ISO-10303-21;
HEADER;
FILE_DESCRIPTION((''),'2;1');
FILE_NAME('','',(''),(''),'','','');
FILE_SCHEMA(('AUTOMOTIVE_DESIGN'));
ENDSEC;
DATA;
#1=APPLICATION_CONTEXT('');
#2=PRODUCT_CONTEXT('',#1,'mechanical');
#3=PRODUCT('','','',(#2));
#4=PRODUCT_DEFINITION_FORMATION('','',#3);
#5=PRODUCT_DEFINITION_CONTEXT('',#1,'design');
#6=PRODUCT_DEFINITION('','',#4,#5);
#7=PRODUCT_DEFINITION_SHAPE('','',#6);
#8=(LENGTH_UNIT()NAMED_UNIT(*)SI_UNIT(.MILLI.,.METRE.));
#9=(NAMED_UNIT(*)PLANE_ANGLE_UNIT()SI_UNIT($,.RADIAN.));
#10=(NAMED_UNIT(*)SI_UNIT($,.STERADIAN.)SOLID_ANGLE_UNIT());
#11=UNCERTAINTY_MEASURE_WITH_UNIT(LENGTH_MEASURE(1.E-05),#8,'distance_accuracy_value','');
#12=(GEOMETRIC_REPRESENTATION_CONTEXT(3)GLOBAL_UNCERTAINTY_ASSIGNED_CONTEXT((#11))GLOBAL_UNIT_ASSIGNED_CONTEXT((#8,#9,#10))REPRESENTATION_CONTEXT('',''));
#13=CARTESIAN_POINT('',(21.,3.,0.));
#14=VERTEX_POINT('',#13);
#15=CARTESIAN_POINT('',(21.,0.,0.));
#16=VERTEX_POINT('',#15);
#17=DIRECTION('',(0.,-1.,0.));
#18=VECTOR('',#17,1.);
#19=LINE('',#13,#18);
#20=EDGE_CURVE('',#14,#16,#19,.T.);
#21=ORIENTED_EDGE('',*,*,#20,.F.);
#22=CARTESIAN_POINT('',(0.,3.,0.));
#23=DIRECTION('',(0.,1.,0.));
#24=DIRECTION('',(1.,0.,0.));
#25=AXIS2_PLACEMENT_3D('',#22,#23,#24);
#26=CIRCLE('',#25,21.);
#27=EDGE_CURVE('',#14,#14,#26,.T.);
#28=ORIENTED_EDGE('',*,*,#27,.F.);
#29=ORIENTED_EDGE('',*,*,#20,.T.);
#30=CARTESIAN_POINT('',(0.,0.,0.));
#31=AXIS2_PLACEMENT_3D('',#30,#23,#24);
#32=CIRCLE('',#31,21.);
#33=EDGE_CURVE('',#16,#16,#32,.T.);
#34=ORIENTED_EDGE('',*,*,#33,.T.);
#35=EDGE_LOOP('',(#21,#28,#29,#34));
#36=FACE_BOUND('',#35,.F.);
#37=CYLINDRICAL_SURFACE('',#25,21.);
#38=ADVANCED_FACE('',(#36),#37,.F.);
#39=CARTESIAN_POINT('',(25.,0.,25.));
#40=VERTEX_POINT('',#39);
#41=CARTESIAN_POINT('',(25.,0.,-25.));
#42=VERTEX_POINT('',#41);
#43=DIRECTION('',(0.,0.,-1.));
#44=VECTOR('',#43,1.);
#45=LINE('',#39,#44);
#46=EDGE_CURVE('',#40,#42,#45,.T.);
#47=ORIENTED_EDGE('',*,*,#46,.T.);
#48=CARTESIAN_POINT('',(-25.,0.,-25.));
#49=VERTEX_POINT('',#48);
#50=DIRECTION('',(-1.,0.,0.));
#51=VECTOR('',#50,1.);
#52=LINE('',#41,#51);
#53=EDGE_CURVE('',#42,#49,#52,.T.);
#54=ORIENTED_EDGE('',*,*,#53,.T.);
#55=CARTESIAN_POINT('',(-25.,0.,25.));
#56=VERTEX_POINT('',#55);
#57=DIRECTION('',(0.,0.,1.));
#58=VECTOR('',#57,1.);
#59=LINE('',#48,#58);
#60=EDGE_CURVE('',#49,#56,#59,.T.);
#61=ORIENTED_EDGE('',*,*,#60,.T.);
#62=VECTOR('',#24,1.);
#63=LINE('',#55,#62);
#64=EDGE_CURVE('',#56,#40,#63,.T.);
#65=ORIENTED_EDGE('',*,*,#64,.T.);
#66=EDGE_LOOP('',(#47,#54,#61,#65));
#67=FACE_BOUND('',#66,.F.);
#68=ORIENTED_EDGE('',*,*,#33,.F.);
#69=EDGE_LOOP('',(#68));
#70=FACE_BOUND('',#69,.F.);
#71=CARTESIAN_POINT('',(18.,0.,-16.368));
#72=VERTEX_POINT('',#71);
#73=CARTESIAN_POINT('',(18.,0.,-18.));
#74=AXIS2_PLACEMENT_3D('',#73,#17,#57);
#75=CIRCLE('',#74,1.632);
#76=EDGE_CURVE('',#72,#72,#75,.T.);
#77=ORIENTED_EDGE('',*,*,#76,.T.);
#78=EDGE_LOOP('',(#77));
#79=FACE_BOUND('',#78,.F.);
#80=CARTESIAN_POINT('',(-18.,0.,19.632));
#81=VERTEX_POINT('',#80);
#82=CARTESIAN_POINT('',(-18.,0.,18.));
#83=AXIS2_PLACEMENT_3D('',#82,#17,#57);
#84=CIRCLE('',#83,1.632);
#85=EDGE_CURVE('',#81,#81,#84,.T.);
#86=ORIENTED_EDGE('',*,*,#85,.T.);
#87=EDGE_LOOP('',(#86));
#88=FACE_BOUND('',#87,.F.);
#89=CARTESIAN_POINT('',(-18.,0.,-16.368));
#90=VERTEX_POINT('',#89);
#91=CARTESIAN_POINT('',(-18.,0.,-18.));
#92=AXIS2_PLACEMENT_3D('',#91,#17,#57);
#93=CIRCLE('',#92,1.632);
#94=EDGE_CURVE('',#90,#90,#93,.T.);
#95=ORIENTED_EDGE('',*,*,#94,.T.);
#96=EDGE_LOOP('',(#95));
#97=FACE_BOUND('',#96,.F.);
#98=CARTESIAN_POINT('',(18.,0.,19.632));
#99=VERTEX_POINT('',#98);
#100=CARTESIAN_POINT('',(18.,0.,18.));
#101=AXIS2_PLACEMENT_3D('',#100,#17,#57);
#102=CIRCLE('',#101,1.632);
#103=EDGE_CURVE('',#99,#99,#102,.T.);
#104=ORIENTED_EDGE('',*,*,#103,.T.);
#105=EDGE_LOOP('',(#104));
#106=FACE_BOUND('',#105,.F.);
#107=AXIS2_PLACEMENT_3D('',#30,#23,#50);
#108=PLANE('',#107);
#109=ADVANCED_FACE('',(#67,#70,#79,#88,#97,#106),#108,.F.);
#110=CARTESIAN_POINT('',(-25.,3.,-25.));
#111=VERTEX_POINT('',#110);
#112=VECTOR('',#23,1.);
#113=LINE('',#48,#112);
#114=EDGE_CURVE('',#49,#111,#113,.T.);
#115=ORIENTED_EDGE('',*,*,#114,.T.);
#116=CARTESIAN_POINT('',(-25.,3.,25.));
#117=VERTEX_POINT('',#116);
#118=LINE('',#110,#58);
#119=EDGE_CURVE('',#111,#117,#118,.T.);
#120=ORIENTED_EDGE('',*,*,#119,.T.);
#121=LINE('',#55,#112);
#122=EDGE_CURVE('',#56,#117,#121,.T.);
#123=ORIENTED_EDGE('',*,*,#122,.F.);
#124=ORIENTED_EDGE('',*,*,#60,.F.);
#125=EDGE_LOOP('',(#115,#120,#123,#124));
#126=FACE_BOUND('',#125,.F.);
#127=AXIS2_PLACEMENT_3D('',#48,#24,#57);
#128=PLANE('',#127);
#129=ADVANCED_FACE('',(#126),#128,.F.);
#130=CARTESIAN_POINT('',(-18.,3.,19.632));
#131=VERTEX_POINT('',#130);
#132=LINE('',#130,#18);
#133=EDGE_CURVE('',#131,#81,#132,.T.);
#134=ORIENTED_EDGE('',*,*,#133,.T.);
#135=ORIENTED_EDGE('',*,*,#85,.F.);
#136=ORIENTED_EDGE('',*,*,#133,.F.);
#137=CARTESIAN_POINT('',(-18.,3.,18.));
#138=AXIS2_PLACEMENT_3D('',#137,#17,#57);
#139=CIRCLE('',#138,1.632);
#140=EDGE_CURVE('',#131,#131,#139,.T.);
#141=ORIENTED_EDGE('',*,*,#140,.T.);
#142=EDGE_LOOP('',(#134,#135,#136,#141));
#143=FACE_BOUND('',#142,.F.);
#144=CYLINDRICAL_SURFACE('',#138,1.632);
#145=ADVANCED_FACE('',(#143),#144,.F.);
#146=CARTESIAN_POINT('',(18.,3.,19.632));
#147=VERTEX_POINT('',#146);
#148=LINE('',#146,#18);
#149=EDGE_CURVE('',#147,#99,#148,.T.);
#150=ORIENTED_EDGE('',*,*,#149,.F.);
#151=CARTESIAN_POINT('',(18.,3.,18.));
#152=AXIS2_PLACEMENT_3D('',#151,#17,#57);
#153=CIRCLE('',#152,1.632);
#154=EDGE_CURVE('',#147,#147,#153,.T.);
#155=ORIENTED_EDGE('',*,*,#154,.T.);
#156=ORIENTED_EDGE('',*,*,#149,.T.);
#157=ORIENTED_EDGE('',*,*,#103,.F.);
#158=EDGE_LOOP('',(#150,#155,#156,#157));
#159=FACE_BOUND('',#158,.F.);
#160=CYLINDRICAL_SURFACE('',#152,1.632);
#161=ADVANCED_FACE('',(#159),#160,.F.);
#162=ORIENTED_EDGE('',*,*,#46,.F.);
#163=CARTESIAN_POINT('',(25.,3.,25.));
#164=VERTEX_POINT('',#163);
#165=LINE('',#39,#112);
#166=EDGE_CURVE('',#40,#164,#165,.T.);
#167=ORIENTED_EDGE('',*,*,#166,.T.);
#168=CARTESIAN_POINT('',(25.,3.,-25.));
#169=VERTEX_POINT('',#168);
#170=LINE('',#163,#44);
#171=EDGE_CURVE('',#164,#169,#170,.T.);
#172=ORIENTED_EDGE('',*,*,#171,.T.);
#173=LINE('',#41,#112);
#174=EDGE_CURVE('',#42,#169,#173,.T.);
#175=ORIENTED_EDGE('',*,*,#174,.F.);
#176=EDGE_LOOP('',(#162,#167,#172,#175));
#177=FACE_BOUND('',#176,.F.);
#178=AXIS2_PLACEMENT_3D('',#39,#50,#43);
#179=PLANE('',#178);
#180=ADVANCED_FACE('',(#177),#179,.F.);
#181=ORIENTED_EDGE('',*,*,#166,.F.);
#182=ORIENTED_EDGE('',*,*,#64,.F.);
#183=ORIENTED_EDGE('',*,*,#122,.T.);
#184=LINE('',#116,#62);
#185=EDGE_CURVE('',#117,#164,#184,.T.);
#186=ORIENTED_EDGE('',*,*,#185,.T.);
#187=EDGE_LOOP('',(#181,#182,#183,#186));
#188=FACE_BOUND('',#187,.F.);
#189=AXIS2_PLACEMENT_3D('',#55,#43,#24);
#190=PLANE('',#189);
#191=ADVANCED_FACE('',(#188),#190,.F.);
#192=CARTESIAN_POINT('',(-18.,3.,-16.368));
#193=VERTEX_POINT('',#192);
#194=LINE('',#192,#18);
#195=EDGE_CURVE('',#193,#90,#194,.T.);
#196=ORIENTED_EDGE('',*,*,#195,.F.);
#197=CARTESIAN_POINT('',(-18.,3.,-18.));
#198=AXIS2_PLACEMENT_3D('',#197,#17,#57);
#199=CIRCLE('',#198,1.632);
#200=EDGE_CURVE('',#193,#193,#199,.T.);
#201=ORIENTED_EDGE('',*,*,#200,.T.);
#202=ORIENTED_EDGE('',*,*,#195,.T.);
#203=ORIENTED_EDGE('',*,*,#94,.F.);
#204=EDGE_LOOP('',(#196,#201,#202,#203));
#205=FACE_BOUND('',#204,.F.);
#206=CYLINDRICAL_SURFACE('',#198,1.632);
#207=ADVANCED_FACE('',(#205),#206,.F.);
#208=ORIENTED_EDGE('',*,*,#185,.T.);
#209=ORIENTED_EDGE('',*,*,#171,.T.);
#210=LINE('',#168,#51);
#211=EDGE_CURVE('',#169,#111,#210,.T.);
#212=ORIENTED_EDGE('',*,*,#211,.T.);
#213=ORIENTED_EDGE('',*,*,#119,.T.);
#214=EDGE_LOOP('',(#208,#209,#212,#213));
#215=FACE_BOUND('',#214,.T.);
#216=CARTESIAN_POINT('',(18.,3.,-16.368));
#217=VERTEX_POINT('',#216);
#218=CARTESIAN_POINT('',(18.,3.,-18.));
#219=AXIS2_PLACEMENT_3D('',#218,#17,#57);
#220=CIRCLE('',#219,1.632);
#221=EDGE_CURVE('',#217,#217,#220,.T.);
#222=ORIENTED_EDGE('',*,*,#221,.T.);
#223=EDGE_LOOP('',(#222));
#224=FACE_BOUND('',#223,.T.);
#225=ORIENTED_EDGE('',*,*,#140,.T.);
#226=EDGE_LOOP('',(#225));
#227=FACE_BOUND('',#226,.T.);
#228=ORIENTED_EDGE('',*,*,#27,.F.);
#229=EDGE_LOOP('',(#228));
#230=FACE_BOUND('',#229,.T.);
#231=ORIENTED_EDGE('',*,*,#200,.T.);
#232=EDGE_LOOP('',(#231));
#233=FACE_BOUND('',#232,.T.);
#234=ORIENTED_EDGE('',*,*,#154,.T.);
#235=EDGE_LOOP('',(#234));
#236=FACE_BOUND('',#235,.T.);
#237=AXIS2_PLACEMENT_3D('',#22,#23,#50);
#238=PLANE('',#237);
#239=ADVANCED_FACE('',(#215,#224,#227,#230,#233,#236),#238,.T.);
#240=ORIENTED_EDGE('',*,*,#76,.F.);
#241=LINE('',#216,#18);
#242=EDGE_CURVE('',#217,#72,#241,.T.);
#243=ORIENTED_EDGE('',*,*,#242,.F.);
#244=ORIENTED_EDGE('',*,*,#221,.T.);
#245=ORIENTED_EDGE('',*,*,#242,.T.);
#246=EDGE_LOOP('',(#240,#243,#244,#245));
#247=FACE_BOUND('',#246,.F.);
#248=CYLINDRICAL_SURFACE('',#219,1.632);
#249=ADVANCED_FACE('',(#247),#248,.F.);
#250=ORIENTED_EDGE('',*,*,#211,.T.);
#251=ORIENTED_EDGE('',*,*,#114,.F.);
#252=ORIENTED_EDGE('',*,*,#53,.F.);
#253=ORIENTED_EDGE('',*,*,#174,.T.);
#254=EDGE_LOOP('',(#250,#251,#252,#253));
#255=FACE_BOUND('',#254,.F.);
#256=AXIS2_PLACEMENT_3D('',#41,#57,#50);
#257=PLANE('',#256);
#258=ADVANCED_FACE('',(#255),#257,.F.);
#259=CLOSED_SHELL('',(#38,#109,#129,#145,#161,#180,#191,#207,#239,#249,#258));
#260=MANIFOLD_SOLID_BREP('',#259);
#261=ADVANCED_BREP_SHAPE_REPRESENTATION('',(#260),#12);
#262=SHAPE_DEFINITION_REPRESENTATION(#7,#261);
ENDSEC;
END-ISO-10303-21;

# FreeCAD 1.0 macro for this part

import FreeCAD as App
import Part
import Sketcher
from FreeCAD import Vector

doc = App.newDocument("Part")
body = doc.addObject("PartDesign::Body", "Body")

# Sketch on XZ plane
sketch1 = body.newObject("Sketcher::SketchObject", "Sketch")
sketch1.AttachmentSupport = (doc.getObject("XZ_Plane"), [""])
sketch1.MapMode = "FlatFace"
sketch1.addGeometry(Part.LineSegment(Vector(25, 25, 0), Vector(25, -25, 0)), False)
sketch1.addGeometry(Part.LineSegment(Vector(25, -25, 0), Vector(-25, -25, 0)), False)
sketch1.addGeometry(Part.LineSegment(Vector(-25, -25, 0), Vector(-25, 25, 0)), False)
sketch1.addGeometry(Part.LineSegment(Vector(-25, 25, 0), Vector(25, 25, 0)), False)
sketch1.addConstraint(Sketcher.Constraint("Coincident", 0, 2, 1, 1))
sketch1.addConstraint(Sketcher.Constraint("Coincident", 1, 2, 2, 1))
sketch1.addConstraint(Sketcher.Constraint("Coincident", 2, 2, 3, 1))
sketch1.addConstraint(Sketcher.Constraint("Coincident", 3, 2, 0, 1))
sketch1.addConstraint(Sketcher.Constraint("Vertical", 0))
sketch1.addConstraint(Sketcher.Constraint("Horizontal", 1))
sketch1.addConstraint(Sketcher.Constraint("Vertical", 2))
sketch1.addConstraint(Sketcher.Constraint("Horizontal", 3))
sketch1.addConstraint(Sketcher.Constraint("Symmetric", 0, 2, 2, 2, -1, 1))
sketch1.addConstraint(Sketcher.Constraint("Equal", 3, 0))
sketch1.addConstraint(Sketcher.Constraint("DistanceX", 1, 2, 1, 1, 50.0))
pad1 = body.newObject("PartDesign::Pad", "Pad")
pad1.Profile = sketch1
pad1.Length = 3
pad1.Reversed = True

# Sketch on XZ plane
sketch2 = body.newObject("Sketcher::SketchObject", "Sketch001")
sketch2.AttachmentSupport = (doc.getObject("XZ_Plane"), [""])
sketch2.MapMode = "FlatFace"
sketch2.AttachmentOffset = App.Placement(Vector(0, 0, -3), App.Rotation())
sketch2.addGeometry(Part.Circle(Vector(0, 0, 0), Vector(0, 0, 1), 21), False)
sketch2.addConstraint(Sketcher.Constraint("Coincident", 0, 3, -1, 1))
sketch2.addConstraint(Sketcher.Constraint("Diameter", 0, 42.0))
pocket1 = body.newObject("PartDesign::Pocket", "Pocket")
pocket1.Profile = sketch2
pocket1.Length = 3
pocket1.Reversed = True

# Sketch on XZ plane
sketch3 = body.newObject("Sketcher::SketchObject", "Sketch002")
sketch3.AttachmentSupport = (doc.getObject("XZ_Plane"), [""])
sketch3.MapMode = "FlatFace"
sketch3.AttachmentOffset = App.Placement(Vector(0, 0, -3), App.Rotation())
sketch3.addGeometry(Part.Circle(Vector(-18, 18, 0), Vector(0, 0, 1), 1.632), False)
sketch3.addGeometry(Part.Circle(Vector(-18, -18, 0), Vector(0, 0, 1), 1.632), False)
sketch3.addGeometry(Part.Circle(Vector(18, -18, 0), Vector(0, 0, 1), 1.632), False)
sketch3.addGeometry(Part.Circle(Vector(18, 18, 0), Vector(0, 0, 1), 1.632), False)
sketch3.addConstraint(Sketcher.Constraint("Equal", 0, 1))
sketch3.addConstraint(Sketcher.Constraint("Equal", 1, 2))
sketch3.addConstraint(Sketcher.Constraint("Equal", 2, 3))
sketch3.addConstraint(Sketcher.Constraint("Symmetric", 0, 3, 2, 3, -1, 1))
sketch3.addConstraint(Sketcher.Constraint("Symmetric", 1, 3, 3, 3, -1, 1))
sketch3.addConstraint(Sketcher.Constraint("Symmetric", 1, 3, 2, 3, -2))
sketch3.addConstraint(Sketcher.Constraint("Diameter", 0, 3.264))
sketch3.addConstraint(Sketcher.Constraint("DistanceX", 0, 3, -1, 1, 18.0))
sketch3.addConstraint(Sketcher.Constraint("DistanceY", -1, 1, 0, 3, 18.0))
doc.recompute()
hole = body.newObject("PartDesign::Hole", "Hole")
hole.Profile = sketch3
hole.ThreadType = "None"
hole.Diameter = 3.264
hole.DepthType = "ThroughAll"
hole.Reversed = True

doc.recompute()
